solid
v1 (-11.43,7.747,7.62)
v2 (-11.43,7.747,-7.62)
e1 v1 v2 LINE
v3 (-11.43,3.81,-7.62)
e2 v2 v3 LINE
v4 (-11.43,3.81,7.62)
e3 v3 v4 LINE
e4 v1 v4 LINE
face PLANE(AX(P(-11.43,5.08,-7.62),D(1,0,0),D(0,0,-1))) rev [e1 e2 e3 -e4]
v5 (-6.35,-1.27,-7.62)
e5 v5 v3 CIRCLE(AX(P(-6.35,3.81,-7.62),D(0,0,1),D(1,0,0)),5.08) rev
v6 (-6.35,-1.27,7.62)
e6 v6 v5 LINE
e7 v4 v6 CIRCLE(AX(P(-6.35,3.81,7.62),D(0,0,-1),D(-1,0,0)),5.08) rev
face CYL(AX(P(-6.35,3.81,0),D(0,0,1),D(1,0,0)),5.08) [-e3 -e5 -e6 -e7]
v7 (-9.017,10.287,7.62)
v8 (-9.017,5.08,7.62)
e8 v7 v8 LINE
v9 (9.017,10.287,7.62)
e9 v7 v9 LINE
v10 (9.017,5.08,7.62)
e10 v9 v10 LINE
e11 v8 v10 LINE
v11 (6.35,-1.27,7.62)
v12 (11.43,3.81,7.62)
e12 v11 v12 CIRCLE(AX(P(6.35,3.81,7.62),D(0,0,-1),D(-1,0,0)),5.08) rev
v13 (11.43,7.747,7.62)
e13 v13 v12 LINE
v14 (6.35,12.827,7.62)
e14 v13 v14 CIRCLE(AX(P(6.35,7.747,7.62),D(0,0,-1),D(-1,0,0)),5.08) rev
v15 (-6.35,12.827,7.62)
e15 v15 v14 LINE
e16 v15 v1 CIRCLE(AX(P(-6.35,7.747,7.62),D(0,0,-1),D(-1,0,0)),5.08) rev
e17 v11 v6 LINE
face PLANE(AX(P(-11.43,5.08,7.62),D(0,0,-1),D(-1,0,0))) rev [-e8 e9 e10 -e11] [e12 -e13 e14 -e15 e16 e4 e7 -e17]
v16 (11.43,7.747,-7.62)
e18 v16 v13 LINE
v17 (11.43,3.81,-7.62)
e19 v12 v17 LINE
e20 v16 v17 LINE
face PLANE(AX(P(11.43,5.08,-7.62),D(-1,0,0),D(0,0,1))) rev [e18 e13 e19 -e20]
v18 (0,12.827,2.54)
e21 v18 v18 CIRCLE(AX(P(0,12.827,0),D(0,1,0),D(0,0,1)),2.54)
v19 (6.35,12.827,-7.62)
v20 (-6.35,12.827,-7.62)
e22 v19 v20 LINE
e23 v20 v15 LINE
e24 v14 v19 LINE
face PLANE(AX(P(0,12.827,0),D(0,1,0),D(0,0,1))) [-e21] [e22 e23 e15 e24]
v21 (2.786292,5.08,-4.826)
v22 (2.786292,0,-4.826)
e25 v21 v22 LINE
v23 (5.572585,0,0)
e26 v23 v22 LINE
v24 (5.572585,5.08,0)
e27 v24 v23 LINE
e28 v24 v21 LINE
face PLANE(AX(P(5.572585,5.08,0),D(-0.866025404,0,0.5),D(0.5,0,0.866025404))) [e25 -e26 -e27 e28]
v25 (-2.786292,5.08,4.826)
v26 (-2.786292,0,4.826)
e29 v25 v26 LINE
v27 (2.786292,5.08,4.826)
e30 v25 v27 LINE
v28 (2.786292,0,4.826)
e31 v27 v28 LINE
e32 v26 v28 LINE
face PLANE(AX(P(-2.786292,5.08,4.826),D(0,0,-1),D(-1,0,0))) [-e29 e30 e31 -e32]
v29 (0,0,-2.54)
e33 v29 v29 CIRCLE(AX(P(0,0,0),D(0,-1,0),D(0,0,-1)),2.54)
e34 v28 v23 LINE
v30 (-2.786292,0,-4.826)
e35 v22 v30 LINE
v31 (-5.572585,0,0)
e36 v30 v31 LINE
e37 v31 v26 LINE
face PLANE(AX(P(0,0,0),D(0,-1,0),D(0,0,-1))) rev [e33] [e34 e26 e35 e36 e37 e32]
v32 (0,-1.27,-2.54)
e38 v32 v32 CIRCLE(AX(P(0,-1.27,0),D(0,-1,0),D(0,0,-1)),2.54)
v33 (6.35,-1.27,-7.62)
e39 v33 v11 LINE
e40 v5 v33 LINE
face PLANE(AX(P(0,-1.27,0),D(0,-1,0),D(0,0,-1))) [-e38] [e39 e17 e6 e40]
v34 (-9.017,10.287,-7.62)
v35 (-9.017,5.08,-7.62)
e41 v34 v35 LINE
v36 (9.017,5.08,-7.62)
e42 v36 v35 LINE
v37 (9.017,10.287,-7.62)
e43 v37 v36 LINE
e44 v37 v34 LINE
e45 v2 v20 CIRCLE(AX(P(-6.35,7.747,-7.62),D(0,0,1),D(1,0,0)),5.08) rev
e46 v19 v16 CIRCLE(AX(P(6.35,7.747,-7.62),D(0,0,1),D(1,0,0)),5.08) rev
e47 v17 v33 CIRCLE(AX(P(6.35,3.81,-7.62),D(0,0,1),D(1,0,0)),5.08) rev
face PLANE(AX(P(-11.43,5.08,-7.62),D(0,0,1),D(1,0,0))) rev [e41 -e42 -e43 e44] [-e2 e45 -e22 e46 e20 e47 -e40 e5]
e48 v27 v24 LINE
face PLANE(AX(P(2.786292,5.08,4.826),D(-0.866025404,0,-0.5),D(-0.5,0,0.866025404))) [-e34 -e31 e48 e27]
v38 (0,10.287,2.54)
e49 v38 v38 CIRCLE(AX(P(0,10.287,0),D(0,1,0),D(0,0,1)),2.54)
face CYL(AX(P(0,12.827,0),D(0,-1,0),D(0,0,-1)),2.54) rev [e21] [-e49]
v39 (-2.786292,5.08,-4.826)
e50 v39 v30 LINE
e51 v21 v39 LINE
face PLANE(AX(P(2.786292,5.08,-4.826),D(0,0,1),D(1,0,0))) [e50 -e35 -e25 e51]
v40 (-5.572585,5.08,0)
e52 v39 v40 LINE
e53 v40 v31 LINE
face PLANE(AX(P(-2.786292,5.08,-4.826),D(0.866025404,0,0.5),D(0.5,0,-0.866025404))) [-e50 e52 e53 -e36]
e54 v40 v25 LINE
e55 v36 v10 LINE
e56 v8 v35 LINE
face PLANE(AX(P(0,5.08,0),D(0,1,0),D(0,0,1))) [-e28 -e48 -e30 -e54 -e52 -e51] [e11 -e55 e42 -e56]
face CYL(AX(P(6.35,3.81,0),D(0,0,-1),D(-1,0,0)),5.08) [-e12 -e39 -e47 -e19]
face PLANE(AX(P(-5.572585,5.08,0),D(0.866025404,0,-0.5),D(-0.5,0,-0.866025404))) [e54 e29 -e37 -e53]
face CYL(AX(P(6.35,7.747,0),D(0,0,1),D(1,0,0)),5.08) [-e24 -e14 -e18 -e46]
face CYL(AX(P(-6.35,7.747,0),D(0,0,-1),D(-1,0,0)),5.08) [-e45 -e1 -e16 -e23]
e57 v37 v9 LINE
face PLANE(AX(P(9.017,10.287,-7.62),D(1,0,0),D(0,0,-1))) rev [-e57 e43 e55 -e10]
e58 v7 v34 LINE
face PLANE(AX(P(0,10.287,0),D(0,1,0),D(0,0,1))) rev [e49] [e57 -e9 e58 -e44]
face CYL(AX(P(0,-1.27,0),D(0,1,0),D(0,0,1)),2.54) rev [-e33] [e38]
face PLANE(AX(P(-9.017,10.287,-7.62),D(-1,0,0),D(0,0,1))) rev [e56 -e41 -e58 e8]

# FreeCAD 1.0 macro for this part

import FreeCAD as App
import Part
import Sketcher

V = App.Vector
Q = App.Units.Quantity


def edges_at(feature, points):
    """Names of the edges that pass closest to the given points."""
    edges = feature.Shape.Edges
    near = lambda p: min(range(len(edges)), key=lambda i: edges[i].distToShape(Part.Vertex(*p))[0])
    return sorted({f"Edge{near(p) + 1}" for p in points})


def add_polygon(sketch, points):
    """Adds a closed chain of lines whose ends are joined by coincident constraints."""
    first, n = sketch.GeometryCount, len(points)
    for a, b in zip(points, points[1:] + points[:1]):
        sketch.addGeometry(Part.LineSegment(App.Vector(*a, 0), App.Vector(*b, 0)), False)
    for i in range(n):
        sketch.addConstraint(Sketcher.Constraint("Coincident", first + i, 2, first + (i + 1) % n, 1))

doc = App.newDocument("Part")
body = doc.addObject("PartDesign::Body", "Body")

# Sketch on XZ plane
sketch1 = body.newObject("Sketcher::SketchObject", "Sketch")
sketch1.AttachmentSupport = (doc.getObject("XZ_Plane"), [""])
sketch1.MapMode = "FlatFace"
add_polygon(sketch1, [(-11, -8), (-11, 8), (11, 8), (11, -8)])  # lines 0-3
add_polygon(sketch1, [(3, -5), (6, 0), (3, 5), (-3, 5), (-6, 0), (-3, -5)])  # lines 4-9
sketch1.addConstraint([
    Sketcher.Constraint("Vertical", 0),
    Sketcher.Constraint("Horizontal", 1),
    Sketcher.Constraint("Vertical", 2),
    Sketcher.Constraint("Horizontal", 3),
    Sketcher.Constraint("Horizontal", 6),
    Sketcher.Constraint("Horizontal", 9),
    Sketcher.Constraint("Symmetric", 0, 2, 2, 2, -1, 1),
    Sketcher.Constraint("Symmetric", 4, 2, 7, 2, -1, 1),
    Sketcher.Constraint("Symmetric", 5, 2, 8, 2, -1, 1),
    Sketcher.Constraint("PointOnObject", 4, 2, -1),
    Sketcher.Constraint("Parallel", 4, 7),
    Sketcher.Constraint("Vertical", 6, 2, 8, 2),
    Sketcher.Constraint("DistanceX", 1, 1, 1, 2, Q("0.9 in")),
    Sketcher.Constraint("DistanceY", 0, 1, 0, 2, Q("0.6 in")),
    Sketcher.Constraint("Angle", 4, Q("60 deg")),
    Sketcher.Constraint("DistanceY", -1, 1, 5, 2, Q("0.19 in")),
    Sketcher.Constraint("DistanceX", 6, 2, 6, 1, 5.572585),
])
pad1 = body.newObject("PartDesign::Pad", "Pad")
pad1.Profile = sketch1
pad1.Length = Q("0.2 in")
pad1.Reversed = True

# Sketch on XZ plane
sketch2 = body.newObject("Sketcher::SketchObject", "Sketch001")
sketch2.AttachmentSupport = (doc.getObject("XZ_Plane"), [""])
sketch2.MapMode = "FlatFace"
sketch2.AttachmentOffset = App.Placement(V(0, 0, -0.2 * 25.4), App.Rotation())
add_polygon(sketch2, [(-11.4, -7.6), (-11.4, 7.6), (-9, 7.6), (-9, -7.6)])  # lines 0-3
add_polygon(sketch2, [(9, -7.6), (9, 7.6), (11.4, 7.6), (11.4, -7.6)])  # lines 4-7
sketch2.addConstraint([
    Sketcher.Constraint("Vertical", 0),
    Sketcher.Constraint("Horizontal", 1),
    Sketcher.Constraint("Vertical", 2),
    Sketcher.Constraint("Horizontal", 3),
    Sketcher.Constraint("Vertical", 4),
    Sketcher.Constraint("Horizontal", 5),
    Sketcher.Constraint("Vertical", 6),
    Sketcher.Constraint("Horizontal", 7),
    Sketcher.Constraint("Symmetric", 2, 2, 4, 2, -1, 1),
    Sketcher.Constraint("Symmetric", 0, 2, 6, 2, -1, 1),
    Sketcher.Constraint("Horizontal", 1, 2, 4, 2),
    Sketcher.Constraint("DistanceY", 0, 1, 0, 2, Q("0.6 in")),
    Sketcher.Constraint("DistanceX", 0, 2, 5, 2, Q("0.9 in")),
    Sketcher.Constraint("DistanceX", 1, 1, 1, 2, Q("0.095 in")),
])
pad2 = body.newObject("PartDesign::Pad", "Pad001")
pad2.Profile = sketch2
pad2.Length = Q("0.205 in")
pad2.Reversed = True

# Sketch on XZ plane
sketch3 = body.newObject("Sketcher::SketchObject", "Sketch002")
sketch3.AttachmentSupport = (doc.getObject("XZ_Plane"), [""])
sketch3.MapMode = "FlatFace"
sketch3.AttachmentOffset = App.Placement(V(0, 0, -0.405 * 25.4), App.Rotation())
add_polygon(sketch3, [(-11.4, -7.6), (-11.4, 7.6), (11.4, 7.6), (11.4, -7.6)])  # lines 0-3
sketch3.addGeometry(Part.Circle(V(0, 0, 0), V(0, 0, 1), 2.5), False)  # 4
sketch3.addConstraint([
    Sketcher.Constraint("Vertical", 0),
    Sketcher.Constraint("Horizontal", 1),
    Sketcher.Constraint("Vertical", 2),
    Sketcher.Constraint("Horizontal", 3),
    Sketcher.Constraint("Coincident", 4, 3, -1, 1),
    Sketcher.Constraint("Symmetric", 0, 2, 2, 2, -1, 1),
    Sketcher.Constraint("Diameter", 4, Q("0.2 in")),
    Sketcher.Constraint("DistanceX", 1, 1, 1, 2, Q("0.9 in")),
    Sketcher.Constraint("DistanceY", 0, 1, 0, 2, Q("0.6 in")),
])
pad3 = body.newObject("PartDesign::Pad", "Pad002")
pad3.Profile = sketch3
pad3.Length = Q("0.1 in")
pad3.Reversed = True

# Sketch on XZ plane
sketch4 = body.newObject("Sketcher::SketchObject", "Sketch003")
sketch4.AttachmentSupport = (doc.getObject("XZ_Plane"), [""])
sketch4.MapMode = "FlatFace"
add_polygon(sketch4, [(-11.4, 7.6), (-11.4, -7.6), (11.4, -7.6), (11.4, 7.6)])  # lines 0-3
sketch4.addGeometry(Part.Circle(V(0, 0, 0), V(0, 0, 1), 2.5), False)  # 4
sketch4.addConstraint([
    Sketcher.Constraint("Vertical", 0),
    Sketcher.Constraint("Horizontal", 1),
    Sketcher.Constraint("Vertical", 2),
    Sketcher.Constraint("Horizontal", 3),
    Sketcher.Constraint("Coincident", 4, 3, -1, 1),
    Sketcher.Constraint("Symmetric", 0, 2, 2, 2, -1, 1),
    Sketcher.Constraint("Diameter", 4, Q("0.2 in")),
    Sketcher.Constraint("DistanceX", 1, 1, 1, 2, Q("0.9 in")),
    Sketcher.Constraint("DistanceY", 0, 2, 0, 1, Q("0.6 in")),
])
pad4 = body.newObject("PartDesign::Pad", "Pad003")
pad4.Profile = sketch4
pad4.Length = Q("0.05 in")
doc.recompute()

fillet = body.newObject("PartDesign::Fillet", "Fillet")
fillet.Base = (pad4, edges_at(pad4, [
    (-11.43, 12.827, 0),
    (11.43, 12.827, 0),
    (-11.43, -1.27, 0),
    (11.43, -1.27, 0),
]))
fillet.Radius = Q("0.2 in")

doc.recompute()
